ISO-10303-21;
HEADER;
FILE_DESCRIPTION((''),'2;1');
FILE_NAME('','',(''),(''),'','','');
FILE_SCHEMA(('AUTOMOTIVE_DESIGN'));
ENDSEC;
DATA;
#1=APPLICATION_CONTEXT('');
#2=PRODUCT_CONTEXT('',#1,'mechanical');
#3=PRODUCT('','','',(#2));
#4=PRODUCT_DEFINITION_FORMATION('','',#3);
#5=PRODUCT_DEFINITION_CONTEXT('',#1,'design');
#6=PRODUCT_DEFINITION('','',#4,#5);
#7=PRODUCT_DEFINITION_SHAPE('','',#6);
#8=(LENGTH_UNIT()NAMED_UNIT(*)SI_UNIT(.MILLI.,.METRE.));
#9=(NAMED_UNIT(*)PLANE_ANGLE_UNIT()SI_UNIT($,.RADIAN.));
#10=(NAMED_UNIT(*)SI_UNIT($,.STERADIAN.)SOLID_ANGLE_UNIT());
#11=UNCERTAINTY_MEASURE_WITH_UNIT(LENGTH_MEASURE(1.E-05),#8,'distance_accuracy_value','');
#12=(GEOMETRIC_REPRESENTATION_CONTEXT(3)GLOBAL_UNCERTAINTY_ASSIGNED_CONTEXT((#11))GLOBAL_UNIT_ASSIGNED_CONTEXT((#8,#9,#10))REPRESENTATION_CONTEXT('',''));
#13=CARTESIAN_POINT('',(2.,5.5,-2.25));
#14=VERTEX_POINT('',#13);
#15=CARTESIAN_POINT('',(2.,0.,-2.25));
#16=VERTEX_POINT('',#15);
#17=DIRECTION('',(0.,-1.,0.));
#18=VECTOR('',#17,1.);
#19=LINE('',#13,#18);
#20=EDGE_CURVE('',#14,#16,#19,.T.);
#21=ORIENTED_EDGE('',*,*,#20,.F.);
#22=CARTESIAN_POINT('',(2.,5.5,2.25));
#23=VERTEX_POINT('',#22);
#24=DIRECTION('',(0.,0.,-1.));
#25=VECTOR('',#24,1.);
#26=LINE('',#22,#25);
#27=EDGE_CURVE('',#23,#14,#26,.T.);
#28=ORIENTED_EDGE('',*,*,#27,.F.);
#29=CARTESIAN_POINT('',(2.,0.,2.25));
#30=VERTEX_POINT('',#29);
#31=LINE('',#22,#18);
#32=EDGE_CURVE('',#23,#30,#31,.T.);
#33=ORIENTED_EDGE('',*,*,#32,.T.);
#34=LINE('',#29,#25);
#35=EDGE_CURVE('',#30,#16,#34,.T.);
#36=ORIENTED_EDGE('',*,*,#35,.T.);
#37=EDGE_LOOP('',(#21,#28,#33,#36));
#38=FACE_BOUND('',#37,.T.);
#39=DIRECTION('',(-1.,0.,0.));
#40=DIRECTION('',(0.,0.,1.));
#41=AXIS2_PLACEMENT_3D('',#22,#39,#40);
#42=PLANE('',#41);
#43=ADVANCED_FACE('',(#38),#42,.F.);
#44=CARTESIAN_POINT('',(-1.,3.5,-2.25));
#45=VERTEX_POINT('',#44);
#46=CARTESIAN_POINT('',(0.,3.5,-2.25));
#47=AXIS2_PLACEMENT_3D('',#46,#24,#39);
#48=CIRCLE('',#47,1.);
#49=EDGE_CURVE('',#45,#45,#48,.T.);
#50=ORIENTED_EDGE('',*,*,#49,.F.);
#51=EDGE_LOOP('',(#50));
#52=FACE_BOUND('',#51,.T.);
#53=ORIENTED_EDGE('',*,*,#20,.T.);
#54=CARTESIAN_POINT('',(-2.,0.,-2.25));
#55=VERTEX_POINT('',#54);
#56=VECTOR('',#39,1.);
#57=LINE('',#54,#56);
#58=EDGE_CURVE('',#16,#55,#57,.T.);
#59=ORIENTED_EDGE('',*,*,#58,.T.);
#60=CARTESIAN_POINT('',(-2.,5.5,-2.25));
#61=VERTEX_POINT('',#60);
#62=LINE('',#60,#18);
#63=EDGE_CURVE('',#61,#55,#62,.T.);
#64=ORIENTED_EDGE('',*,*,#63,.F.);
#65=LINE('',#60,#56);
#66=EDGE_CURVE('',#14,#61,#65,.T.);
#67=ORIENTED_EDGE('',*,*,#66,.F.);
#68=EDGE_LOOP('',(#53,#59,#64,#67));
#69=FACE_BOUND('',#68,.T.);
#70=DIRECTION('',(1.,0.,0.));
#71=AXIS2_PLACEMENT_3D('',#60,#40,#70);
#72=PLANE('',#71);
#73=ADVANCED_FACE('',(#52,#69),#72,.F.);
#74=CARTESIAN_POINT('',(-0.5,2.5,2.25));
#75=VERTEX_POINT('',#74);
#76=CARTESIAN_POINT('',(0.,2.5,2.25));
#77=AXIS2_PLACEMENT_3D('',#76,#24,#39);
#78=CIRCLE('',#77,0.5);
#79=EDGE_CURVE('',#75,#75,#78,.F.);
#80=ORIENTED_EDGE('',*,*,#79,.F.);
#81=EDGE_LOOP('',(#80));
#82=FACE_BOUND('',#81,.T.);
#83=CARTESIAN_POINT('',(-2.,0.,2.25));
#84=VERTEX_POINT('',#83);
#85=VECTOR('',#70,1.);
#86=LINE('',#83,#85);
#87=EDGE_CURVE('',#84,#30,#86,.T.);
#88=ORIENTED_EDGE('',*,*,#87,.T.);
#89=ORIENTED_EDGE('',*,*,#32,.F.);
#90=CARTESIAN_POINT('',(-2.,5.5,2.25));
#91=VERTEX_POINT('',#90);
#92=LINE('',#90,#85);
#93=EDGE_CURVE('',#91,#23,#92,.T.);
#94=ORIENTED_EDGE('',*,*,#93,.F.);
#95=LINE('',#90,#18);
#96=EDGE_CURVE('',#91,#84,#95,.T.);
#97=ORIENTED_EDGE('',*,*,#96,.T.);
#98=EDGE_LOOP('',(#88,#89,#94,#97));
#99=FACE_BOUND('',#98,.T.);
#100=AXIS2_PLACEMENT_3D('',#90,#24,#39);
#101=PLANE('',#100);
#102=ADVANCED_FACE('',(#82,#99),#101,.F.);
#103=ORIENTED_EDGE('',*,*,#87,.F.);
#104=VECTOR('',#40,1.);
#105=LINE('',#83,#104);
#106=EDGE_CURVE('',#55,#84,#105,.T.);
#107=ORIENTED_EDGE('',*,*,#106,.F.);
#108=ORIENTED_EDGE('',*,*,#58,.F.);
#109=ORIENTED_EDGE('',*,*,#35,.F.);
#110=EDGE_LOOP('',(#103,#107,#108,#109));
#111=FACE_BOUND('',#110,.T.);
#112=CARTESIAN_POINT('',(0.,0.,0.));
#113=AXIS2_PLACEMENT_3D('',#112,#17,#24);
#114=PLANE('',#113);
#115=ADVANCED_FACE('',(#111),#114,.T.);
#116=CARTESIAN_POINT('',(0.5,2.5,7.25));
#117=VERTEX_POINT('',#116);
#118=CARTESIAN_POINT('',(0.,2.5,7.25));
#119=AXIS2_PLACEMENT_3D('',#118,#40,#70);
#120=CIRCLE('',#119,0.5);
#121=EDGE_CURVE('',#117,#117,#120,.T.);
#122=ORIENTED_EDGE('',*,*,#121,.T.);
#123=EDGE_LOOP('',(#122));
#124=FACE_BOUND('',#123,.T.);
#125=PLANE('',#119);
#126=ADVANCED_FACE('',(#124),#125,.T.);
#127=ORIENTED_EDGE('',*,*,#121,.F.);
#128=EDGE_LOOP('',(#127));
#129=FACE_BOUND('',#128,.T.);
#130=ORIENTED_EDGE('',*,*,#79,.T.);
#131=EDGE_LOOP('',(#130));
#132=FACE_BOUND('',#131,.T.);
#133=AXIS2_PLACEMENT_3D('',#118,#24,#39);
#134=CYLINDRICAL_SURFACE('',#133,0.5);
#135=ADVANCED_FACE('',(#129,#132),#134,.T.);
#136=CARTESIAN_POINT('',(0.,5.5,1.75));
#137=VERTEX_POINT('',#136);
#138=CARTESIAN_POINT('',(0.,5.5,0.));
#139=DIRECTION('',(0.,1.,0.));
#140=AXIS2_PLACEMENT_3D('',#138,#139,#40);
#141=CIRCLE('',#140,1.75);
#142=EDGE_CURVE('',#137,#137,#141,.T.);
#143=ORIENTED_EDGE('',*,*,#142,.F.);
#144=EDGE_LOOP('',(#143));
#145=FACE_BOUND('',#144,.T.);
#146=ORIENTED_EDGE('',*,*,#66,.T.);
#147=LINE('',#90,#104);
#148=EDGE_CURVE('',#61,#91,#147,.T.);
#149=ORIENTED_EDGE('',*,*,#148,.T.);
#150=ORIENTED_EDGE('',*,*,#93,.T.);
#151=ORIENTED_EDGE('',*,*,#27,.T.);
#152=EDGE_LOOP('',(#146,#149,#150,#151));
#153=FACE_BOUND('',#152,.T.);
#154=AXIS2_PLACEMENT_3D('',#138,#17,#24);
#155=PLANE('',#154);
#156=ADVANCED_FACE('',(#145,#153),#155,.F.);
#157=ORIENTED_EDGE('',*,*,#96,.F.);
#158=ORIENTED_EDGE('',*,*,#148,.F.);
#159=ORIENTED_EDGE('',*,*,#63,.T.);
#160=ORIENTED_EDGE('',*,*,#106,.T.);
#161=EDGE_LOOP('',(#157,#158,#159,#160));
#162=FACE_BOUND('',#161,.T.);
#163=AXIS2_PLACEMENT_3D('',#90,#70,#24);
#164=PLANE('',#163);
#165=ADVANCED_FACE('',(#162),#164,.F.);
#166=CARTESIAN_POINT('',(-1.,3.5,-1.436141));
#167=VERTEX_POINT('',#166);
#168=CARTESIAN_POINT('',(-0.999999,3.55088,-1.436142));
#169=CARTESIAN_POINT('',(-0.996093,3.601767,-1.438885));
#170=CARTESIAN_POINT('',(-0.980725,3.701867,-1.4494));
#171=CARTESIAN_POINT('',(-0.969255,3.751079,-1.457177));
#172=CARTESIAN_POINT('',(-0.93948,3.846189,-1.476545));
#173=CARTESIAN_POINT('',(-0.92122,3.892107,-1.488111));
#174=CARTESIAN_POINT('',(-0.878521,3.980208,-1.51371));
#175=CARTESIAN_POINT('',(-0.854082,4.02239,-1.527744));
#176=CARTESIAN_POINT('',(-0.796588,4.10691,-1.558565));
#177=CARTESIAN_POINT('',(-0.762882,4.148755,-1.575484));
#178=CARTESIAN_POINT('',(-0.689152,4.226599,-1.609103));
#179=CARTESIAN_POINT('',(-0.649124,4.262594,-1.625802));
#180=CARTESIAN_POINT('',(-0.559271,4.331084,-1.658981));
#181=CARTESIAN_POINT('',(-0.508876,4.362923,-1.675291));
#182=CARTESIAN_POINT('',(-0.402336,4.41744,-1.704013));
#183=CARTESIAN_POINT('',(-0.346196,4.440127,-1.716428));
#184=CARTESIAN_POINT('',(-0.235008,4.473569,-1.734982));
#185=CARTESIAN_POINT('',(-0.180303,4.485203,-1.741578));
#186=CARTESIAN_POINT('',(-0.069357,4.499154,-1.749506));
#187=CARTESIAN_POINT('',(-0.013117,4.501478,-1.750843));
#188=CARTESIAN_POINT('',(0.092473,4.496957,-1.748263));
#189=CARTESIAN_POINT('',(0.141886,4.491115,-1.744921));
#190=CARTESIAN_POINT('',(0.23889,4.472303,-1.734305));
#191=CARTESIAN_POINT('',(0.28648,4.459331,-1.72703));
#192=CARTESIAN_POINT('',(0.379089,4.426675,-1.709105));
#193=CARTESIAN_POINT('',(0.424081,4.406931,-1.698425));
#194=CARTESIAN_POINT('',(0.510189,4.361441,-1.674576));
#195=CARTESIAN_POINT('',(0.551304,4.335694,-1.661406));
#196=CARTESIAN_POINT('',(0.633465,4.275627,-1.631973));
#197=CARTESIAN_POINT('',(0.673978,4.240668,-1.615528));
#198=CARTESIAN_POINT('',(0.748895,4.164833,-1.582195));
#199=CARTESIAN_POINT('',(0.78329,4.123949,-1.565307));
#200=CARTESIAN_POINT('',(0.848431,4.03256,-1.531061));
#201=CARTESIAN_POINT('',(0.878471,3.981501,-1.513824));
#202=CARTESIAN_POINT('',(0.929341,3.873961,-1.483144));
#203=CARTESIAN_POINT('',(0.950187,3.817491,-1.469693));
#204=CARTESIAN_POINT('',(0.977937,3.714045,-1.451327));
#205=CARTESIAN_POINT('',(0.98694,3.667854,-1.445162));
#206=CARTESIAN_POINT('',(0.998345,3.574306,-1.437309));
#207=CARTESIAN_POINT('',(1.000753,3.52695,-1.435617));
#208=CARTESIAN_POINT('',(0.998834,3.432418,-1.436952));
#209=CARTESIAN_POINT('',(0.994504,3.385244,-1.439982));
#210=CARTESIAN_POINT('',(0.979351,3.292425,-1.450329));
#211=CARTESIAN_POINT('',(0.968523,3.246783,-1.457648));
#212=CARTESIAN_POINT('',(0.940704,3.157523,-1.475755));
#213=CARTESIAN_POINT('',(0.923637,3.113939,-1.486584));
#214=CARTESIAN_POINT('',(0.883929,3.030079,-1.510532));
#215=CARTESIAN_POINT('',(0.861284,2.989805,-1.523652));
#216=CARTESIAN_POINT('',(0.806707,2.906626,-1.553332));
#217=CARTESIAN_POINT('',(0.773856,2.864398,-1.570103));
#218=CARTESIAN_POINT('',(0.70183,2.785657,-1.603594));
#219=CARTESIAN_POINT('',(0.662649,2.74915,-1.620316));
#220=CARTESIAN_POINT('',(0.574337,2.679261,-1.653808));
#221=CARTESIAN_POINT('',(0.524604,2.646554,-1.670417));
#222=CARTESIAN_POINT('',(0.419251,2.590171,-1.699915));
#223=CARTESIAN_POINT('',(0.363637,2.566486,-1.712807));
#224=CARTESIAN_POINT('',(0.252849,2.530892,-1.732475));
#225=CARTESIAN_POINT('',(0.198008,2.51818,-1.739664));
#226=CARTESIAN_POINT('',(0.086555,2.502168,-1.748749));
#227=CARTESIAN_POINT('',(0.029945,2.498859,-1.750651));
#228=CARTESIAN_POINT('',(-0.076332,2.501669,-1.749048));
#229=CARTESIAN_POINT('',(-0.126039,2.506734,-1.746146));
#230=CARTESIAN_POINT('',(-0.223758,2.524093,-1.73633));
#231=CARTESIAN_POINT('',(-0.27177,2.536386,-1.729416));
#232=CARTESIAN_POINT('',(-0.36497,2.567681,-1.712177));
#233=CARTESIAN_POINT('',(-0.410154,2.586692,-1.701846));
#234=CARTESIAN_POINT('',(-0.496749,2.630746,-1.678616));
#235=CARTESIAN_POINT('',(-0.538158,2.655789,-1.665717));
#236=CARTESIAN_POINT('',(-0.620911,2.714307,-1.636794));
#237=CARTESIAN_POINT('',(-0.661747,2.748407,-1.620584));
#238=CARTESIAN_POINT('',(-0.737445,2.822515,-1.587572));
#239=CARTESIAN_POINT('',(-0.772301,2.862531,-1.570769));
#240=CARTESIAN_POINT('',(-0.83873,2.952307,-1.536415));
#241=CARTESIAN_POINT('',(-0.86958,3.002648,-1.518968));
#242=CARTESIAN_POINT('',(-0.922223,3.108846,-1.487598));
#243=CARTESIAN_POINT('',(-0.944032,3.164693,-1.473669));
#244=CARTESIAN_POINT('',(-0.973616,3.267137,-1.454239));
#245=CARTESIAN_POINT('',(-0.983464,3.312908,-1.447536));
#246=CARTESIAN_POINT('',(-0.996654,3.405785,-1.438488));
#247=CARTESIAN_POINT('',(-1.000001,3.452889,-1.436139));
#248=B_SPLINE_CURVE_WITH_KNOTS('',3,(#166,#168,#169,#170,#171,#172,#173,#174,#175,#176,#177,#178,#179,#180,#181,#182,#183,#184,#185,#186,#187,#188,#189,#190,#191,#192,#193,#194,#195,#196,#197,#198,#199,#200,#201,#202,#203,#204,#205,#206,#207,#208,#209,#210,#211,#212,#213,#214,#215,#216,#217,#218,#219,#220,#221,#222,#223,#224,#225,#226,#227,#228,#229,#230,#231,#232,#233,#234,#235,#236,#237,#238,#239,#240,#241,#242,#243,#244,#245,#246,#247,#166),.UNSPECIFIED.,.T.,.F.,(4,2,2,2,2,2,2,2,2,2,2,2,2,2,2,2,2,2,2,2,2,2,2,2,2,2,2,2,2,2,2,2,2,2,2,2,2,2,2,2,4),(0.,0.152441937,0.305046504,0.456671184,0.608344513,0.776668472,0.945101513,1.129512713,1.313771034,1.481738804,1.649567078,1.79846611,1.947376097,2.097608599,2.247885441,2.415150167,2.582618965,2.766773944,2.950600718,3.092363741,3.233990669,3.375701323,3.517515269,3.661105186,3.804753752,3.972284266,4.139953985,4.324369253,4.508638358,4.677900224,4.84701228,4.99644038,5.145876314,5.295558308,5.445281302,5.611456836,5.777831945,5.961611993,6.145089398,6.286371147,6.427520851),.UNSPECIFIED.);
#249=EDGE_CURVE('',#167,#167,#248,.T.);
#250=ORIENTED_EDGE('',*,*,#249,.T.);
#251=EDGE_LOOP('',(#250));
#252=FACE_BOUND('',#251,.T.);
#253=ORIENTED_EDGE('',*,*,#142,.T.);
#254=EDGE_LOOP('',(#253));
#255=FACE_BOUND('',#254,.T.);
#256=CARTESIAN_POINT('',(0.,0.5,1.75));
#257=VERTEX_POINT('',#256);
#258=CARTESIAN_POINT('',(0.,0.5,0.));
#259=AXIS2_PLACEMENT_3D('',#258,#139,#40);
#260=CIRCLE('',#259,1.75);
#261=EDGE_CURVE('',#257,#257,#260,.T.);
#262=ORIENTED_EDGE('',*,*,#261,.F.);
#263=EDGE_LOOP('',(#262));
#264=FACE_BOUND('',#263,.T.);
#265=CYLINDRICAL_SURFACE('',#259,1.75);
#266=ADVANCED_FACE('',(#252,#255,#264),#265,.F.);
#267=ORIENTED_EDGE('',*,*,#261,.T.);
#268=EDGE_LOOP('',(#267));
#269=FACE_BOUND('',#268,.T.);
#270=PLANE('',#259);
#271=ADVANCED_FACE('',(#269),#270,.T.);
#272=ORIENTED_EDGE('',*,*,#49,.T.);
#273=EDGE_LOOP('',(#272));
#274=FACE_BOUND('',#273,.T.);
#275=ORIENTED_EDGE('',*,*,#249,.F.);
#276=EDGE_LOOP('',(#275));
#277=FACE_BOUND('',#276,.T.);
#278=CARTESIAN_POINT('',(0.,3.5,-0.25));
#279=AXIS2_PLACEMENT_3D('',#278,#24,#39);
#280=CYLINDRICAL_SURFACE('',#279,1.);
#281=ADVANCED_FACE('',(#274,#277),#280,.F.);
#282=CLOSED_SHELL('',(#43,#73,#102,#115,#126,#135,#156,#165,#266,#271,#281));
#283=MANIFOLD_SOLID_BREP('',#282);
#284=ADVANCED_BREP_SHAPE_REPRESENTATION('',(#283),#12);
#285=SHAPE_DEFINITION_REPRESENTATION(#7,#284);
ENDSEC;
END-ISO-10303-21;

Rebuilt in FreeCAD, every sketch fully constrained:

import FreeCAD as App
import Part
import Sketcher
from FreeCAD import Vector
Q = App.Units.Quantity

doc = App.newDocument("Part")
body = doc.addObject("PartDesign::Body", "Body")

# Sketch on XZ plane
sketch1 = body.newObject("Sketcher::SketchObject", "Sketch")
sketch1.AttachmentSupport = (doc.getObject("XZ_Plane"), [""])
sketch1.MapMode = "FlatFace"
sketch1.addGeometry([
    Part.LineSegment(Vector(-2, -2.2, 0), Vector(-2, 2.2, 0)),
    Part.LineSegment(Vector(-2, 2.2, 0), Vector(2, 2.2, 0)),
    Part.LineSegment(Vector(2, 2.2, 0), Vector(2, -2.2, 0)),
    Part.LineSegment(Vector(2, -2.2, 0), Vector(-2, -2.2, 0)),
], False)
sketch1.addConstraint([
    Sketcher.Constraint("Coincident", 0, 2, 1, 1),
    Sketcher.Constraint("Coincident", 1, 2, 2, 1),
    Sketcher.Constraint("Coincident", 2, 2, 3, 1),
    Sketcher.Constraint("Coincident", 3, 2, 0, 1),
    Sketcher.Constraint("Vertical", 0),
    Sketcher.Constraint("Horizontal", 1),
    Sketcher.Constraint("Vertical", 2),
    Sketcher.Constraint("Horizontal", 3),
    Sketcher.Constraint("Symmetric", 0, 2, 2, 2, -1, 1),
    Sketcher.Constraint("DistanceX", 1, 1, 1, 2, Q("4 mm")),
    Sketcher.Constraint("DistanceY", 0, 1, 0, 2, Q("4.5 mm")),
])
pad1 = body.newObject("PartDesign::Pad", "Pad")
pad1.Profile = sketch1
pad1.Length = 5.5
pad1.Reversed = True

# Sketch on XY plane
sketch2 = body.newObject("Sketcher::SketchObject", "Sketch001")
sketch2.AttachmentSupport = (doc.getObject("XY_Plane"), [""])
sketch2.MapMode = "FlatFace"
sketch2.AttachmentOffset = App.Placement(Vector(0, 0, 2.25), App.Rotation())
sketch2.addGeometry(Part.Circle(Vector(0, 2.5, 0), Vector(0, 0, 1), 0.5), False)
sketch2.addConstraint([
    Sketcher.Constraint("PointOnObject", 0, 3, -2),
    Sketcher.Constraint("Diameter", 0, Q("1 mm")),
    Sketcher.Constraint("DistanceY", -1, 1, 0, 3, Q("2.5 mm")),
])
pad2 = body.newObject("PartDesign::Pad", "Pad001")
pad2.Profile = sketch2
pad2.Length = 5

# Sketch on XZ plane
sketch3 = body.newObject("Sketcher::SketchObject", "Sketch002")
sketch3.AttachmentSupport = (doc.getObject("XZ_Plane"), [""])
sketch3.MapMode = "FlatFace"
sketch3.AttachmentOffset = App.Placement(Vector(0, 0, -5.5), App.Rotation())
sketch3.addGeometry(Part.Circle(Vector(0, 0, 0), Vector(0, 0, 1), 1.8), False)
sketch3.addConstraint([
    Sketcher.Constraint("Coincident", 0, 3, -1, 1),
    Sketcher.Constraint("Diameter", 0, Q("3.5 mm")),
])
pocket1 = body.newObject("PartDesign::Pocket", "Pocket")
pocket1.Profile = sketch3
pocket1.Length = 5
pocket1.Reversed = True

# Sketch on XY plane
sketch4 = body.newObject("Sketcher::SketchObject", "Sketch003")
sketch4.AttachmentSupport = (doc.getObject("XY_Plane"), [""])
sketch4.MapMode = "FlatFace"
sketch4.AttachmentOffset = App.Placement(Vector(0, 0, -2.25), App.Rotation())
sketch4.addGeometry(Part.Circle(Vector(0, 3.5, 0), Vector(0, 0, 1), 1), False)
sketch4.addConstraint([
    Sketcher.Constraint("PointOnObject", 0, 3, -2),
    Sketcher.Constraint("Diameter", 0, Q("2 mm")),
    Sketcher.Constraint("DistanceY", -1, 1, 0, 3, Q("3.5 mm")),
])
pocket2 = body.newObject("PartDesign::Pocket", "Pocket001")
pocket2.Profile = sketch4
pocket2.Length = 2
pocket2.Reversed = True

doc.recompute()
